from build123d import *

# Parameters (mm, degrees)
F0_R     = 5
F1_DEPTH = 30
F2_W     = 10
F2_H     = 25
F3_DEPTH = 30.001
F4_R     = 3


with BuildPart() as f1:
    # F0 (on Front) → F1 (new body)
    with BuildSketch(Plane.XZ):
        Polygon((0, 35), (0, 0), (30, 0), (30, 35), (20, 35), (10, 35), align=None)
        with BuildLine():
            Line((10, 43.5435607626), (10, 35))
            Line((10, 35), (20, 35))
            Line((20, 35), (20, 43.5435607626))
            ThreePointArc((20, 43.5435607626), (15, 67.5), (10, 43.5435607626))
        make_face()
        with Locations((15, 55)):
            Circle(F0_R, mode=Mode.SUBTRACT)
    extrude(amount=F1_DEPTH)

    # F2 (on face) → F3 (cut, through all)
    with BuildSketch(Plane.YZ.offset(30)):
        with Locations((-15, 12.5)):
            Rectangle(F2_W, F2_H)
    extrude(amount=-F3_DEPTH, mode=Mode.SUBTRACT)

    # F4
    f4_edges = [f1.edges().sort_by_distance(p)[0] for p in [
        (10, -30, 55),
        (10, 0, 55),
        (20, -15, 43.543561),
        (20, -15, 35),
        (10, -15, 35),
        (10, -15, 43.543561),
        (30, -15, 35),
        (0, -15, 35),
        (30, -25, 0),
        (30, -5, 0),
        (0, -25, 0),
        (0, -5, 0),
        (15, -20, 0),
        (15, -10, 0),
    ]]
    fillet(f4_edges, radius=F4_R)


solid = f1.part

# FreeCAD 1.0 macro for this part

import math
import FreeCAD as App
import Part
import Sketcher
Q = App.Units.Quantity


def edges_at(feature, points):
    """Names of the edges that pass closest to the given points."""
    edges = feature.Shape.Edges
    near = lambda p: min(range(len(edges)), key=lambda i: edges[i].distToShape(Part.Vertex(*p))[0])
    return sorted({f"Edge{near(p) + 1}" for p in points})

doc = App.newDocument("Part")
params = doc.addObject("Spreadsheet::Sheet", "Params")
for row, (alias, value) in enumerate([
    ("sketch1_diameter", "10 mm"),
    ("sketch1_radius", "12.5 mm"),
    ("sketch1_width", "30 mm"),
    ("sketch1_width2", "10 mm"),
    ("sketch1_height", "35 mm"),
    ("pad1_length", "30 mm"),
    ("sketch2_width", "10 mm"),
    ("sketch2_height", "25 mm"),
    ("fillet_radius", "3 mm"),
], start=1):
    params.set(f"A{row}", alias)
    params.set(f"B{row}", "=" + value)
    params.setAlias(f"B{row}", alias)

body = doc.addObject("PartDesign::Body", "Body")

sketch1 = body.newObject("Sketcher::SketchObject", "Sketch")
sketch1.AttachmentSupport = (doc.getObject("XZ_Plane"), [""])
sketch1.MapMode = "FlatFace"
sketch1.addGeometry(Part.LineSegment(App.Vector(0, 35, 0), App.Vector(0, 0, 0)), False)
sketch1.addGeometry(Part.LineSegment(App.Vector(0, 0, 0), App.Vector(30, 0, 0)), False)
sketch1.addGeometry(Part.LineSegment(App.Vector(30, 0, 0), App.Vector(30, 35, 0)), False)
sketch1.addGeometry(Part.LineSegment(App.Vector(30, 35, 0), App.Vector(20, 35, 0)), False)
sketch1.addGeometry(Part.LineSegment(App.Vector(20, 35, 0), App.Vector(20, 44, 0)), False)
sketch1.addGeometry(Part.ArcOfCircle(Part.Circle(App.Vector(15, 55, 0), App.Vector(0, 0, 1), 12), math.radians(-66), math.radians(246)), False)
sketch1.addGeometry(Part.LineSegment(App.Vector(10, 44, 0), App.Vector(10, 35, 0)), False)
sketch1.addGeometry(Part.LineSegment(App.Vector(10, 35, 0), App.Vector(0, 35, 0)), False)
sketch1.addGeometry(Part.Circle(App.Vector(15, 55, 0), App.Vector(0, 0, 1), 5), False)
sketch1.addConstraint(Sketcher.Constraint("Coincident", 0, 2, 1, 1))
sketch1.addConstraint(Sketcher.Constraint("Coincident", 1, 2, 2, 1))
sketch1.addConstraint(Sketcher.Constraint("Coincident", 2, 2, 3, 1))
sketch1.addConstraint(Sketcher.Constraint("Coincident", 3, 2, 4, 1))
sketch1.addConstraint(Sketcher.Constraint("Coincident", 4, 2, 5, 1))
sketch1.addConstraint(Sketcher.Constraint("Coincident", 5, 2, 6, 1))
sketch1.addConstraint(Sketcher.Constraint("Coincident", 6, 2, 7, 1))
sketch1.addConstraint(Sketcher.Constraint("Coincident", 7, 2, 0, 1))
sketch1.addConstraint(Sketcher.Constraint("Vertical", 0))
sketch1.addConstraint(Sketcher.Constraint("Horizontal", 1))
sketch1.addConstraint(Sketcher.Constraint("Vertical", 2))
sketch1.addConstraint(Sketcher.Constraint("Horizontal", 3))
sketch1.addConstraint(Sketcher.Constraint("Vertical", 4))
sketch1.addConstraint(Sketcher.Constraint("Vertical", 6))
sketch1.addConstraint(Sketcher.Constraint("Horizontal", 7))
sketch1.addConstraint(Sketcher.Constraint("Coincident", 0, 2, -1, 1))
sketch1.addConstraint(Sketcher.Constraint("Coincident", 8, 3, 5, 3))
sketch1.addConstraint(Sketcher.Constraint("Horizontal", 4, 2, 5, 2))
sketch1.addConstraint(Sketcher.Constraint("Horizontal", 3, 2, 6, 2))
sketch1.addConstraint(Sketcher.Constraint("Equal", 3, 7))
sketch1.addConstraint(Sketcher.Constraint("Diameter", 8, Q("10 mm")))
sketch1.addConstraint(Sketcher.Constraint("Radius", 5, Q("12.5 mm")))
sketch1.addConstraint(Sketcher.Constraint("DistanceX", 1, 1, 1, 2, Q("30 mm")))
sketch1.addConstraint(Sketcher.Constraint("DistanceX", 3, 2, 3, 1, Q("10 mm")))
sketch1.addConstraint(Sketcher.Constraint("DistanceY", 0, 2, 0, 1, Q("35 mm")))
sketch1.addConstraint(Sketcher.Constraint("DistanceY", -1, 1, 5, 3, Q("55 mm")))
sketch1.setExpression("Constraints[20]", "Params.sketch1_diameter")
sketch1.setExpression("Constraints[21]", "Params.sketch1_radius")
sketch1.setExpression("Constraints[22]", "Params.sketch1_width")
sketch1.setExpression("Constraints[23]", "Params.sketch1_width2")
sketch1.setExpression("Constraints[24]", "Params.sketch1_height")
pad1 = body.newObject("PartDesign::Pad", "Pad")
pad1.Profile = sketch1
pad1.setExpression("Length", "Params.pad1_length")

sketch2 = body.newObject("Sketcher::SketchObject", "Sketch001")
sketch2.AttachmentSupport = (doc.getObject("YZ_Plane"), [""])
sketch2.MapMode = "FlatFace"
sketch2.AttachmentOffset = App.Placement(App.Vector(0, 0, 30), App.Rotation())
sketch2.addGeometry(Part.LineSegment(App.Vector(-20, 25, 0), App.Vector(-20, 0, 0)), False)
sketch2.addGeometry(Part.LineSegment(App.Vector(-20, 0, 0), App.Vector(-10, 0, 0)), False)
sketch2.addGeometry(Part.LineSegment(App.Vector(-10, 0, 0), App.Vector(-10, 25, 0)), False)
sketch2.addGeometry(Part.LineSegment(App.Vector(-10, 25, 0), App.Vector(-20, 25, 0)), False)
sketch2.addConstraint(Sketcher.Constraint("Coincident", 0, 2, 1, 1))
sketch2.addConstraint(Sketcher.Constraint("Coincident", 1, 2, 2, 1))
sketch2.addConstraint(Sketcher.Constraint("Coincident", 2, 2, 3, 1))
sketch2.addConstraint(Sketcher.Constraint("Coincident", 3, 2, 0, 1))
sketch2.addConstraint(Sketcher.Constraint("Vertical", 0))
sketch2.addConstraint(Sketcher.Constraint("Horizontal", 1))
sketch2.addConstraint(Sketcher.Constraint("Vertical", 2))
sketch2.addConstraint(Sketcher.Constraint("Horizontal", 3))
sketch2.addConstraint(Sketcher.Constraint("PointOnObject", 0, 2, -1))
sketch2.addConstraint(Sketcher.Constraint("DistanceX", 1, 1, 1, 2, Q("10 mm")))
sketch2.addConstraint(Sketcher.Constraint("DistanceY", 0, 2, 0, 1, Q("25 mm")))
sketch2.addConstraint(Sketcher.Constraint("DistanceX", 0, 2, -1, 1, Q("20 mm")))
sketch2.setExpression("Constraints[9]", "Params.sketch2_width")
sketch2.setExpression("Constraints[10]", "Params.sketch2_height")
pocket1 = body.newObject("PartDesign::Pocket", "Pocket")
pocket1.Profile = sketch2
pocket1.Type = "ThroughAll"
doc.recompute()

fillet = body.newObject("PartDesign::Fillet", "Fillet")
fillet.Base = (pocket1, edges_at(pocket1, [
    (10, -30, 55),
    (10, 0, 55),
    (20, -15, 43.544),
    (20, -15, 35),
    (10, -15, 35),
    (10, -15, 43.544),
    (30, -15, 35),
    (0, -15, 35),
    (30, -25, 0),
    (30, -5, 0),
    (0, -25, 0),
    (0, -5, 0),
    (15, -20, 0),
    (15, -10, 0),
]))
fillet.setExpression("Radius", "Params.fillet_radius")

doc.recompute()
